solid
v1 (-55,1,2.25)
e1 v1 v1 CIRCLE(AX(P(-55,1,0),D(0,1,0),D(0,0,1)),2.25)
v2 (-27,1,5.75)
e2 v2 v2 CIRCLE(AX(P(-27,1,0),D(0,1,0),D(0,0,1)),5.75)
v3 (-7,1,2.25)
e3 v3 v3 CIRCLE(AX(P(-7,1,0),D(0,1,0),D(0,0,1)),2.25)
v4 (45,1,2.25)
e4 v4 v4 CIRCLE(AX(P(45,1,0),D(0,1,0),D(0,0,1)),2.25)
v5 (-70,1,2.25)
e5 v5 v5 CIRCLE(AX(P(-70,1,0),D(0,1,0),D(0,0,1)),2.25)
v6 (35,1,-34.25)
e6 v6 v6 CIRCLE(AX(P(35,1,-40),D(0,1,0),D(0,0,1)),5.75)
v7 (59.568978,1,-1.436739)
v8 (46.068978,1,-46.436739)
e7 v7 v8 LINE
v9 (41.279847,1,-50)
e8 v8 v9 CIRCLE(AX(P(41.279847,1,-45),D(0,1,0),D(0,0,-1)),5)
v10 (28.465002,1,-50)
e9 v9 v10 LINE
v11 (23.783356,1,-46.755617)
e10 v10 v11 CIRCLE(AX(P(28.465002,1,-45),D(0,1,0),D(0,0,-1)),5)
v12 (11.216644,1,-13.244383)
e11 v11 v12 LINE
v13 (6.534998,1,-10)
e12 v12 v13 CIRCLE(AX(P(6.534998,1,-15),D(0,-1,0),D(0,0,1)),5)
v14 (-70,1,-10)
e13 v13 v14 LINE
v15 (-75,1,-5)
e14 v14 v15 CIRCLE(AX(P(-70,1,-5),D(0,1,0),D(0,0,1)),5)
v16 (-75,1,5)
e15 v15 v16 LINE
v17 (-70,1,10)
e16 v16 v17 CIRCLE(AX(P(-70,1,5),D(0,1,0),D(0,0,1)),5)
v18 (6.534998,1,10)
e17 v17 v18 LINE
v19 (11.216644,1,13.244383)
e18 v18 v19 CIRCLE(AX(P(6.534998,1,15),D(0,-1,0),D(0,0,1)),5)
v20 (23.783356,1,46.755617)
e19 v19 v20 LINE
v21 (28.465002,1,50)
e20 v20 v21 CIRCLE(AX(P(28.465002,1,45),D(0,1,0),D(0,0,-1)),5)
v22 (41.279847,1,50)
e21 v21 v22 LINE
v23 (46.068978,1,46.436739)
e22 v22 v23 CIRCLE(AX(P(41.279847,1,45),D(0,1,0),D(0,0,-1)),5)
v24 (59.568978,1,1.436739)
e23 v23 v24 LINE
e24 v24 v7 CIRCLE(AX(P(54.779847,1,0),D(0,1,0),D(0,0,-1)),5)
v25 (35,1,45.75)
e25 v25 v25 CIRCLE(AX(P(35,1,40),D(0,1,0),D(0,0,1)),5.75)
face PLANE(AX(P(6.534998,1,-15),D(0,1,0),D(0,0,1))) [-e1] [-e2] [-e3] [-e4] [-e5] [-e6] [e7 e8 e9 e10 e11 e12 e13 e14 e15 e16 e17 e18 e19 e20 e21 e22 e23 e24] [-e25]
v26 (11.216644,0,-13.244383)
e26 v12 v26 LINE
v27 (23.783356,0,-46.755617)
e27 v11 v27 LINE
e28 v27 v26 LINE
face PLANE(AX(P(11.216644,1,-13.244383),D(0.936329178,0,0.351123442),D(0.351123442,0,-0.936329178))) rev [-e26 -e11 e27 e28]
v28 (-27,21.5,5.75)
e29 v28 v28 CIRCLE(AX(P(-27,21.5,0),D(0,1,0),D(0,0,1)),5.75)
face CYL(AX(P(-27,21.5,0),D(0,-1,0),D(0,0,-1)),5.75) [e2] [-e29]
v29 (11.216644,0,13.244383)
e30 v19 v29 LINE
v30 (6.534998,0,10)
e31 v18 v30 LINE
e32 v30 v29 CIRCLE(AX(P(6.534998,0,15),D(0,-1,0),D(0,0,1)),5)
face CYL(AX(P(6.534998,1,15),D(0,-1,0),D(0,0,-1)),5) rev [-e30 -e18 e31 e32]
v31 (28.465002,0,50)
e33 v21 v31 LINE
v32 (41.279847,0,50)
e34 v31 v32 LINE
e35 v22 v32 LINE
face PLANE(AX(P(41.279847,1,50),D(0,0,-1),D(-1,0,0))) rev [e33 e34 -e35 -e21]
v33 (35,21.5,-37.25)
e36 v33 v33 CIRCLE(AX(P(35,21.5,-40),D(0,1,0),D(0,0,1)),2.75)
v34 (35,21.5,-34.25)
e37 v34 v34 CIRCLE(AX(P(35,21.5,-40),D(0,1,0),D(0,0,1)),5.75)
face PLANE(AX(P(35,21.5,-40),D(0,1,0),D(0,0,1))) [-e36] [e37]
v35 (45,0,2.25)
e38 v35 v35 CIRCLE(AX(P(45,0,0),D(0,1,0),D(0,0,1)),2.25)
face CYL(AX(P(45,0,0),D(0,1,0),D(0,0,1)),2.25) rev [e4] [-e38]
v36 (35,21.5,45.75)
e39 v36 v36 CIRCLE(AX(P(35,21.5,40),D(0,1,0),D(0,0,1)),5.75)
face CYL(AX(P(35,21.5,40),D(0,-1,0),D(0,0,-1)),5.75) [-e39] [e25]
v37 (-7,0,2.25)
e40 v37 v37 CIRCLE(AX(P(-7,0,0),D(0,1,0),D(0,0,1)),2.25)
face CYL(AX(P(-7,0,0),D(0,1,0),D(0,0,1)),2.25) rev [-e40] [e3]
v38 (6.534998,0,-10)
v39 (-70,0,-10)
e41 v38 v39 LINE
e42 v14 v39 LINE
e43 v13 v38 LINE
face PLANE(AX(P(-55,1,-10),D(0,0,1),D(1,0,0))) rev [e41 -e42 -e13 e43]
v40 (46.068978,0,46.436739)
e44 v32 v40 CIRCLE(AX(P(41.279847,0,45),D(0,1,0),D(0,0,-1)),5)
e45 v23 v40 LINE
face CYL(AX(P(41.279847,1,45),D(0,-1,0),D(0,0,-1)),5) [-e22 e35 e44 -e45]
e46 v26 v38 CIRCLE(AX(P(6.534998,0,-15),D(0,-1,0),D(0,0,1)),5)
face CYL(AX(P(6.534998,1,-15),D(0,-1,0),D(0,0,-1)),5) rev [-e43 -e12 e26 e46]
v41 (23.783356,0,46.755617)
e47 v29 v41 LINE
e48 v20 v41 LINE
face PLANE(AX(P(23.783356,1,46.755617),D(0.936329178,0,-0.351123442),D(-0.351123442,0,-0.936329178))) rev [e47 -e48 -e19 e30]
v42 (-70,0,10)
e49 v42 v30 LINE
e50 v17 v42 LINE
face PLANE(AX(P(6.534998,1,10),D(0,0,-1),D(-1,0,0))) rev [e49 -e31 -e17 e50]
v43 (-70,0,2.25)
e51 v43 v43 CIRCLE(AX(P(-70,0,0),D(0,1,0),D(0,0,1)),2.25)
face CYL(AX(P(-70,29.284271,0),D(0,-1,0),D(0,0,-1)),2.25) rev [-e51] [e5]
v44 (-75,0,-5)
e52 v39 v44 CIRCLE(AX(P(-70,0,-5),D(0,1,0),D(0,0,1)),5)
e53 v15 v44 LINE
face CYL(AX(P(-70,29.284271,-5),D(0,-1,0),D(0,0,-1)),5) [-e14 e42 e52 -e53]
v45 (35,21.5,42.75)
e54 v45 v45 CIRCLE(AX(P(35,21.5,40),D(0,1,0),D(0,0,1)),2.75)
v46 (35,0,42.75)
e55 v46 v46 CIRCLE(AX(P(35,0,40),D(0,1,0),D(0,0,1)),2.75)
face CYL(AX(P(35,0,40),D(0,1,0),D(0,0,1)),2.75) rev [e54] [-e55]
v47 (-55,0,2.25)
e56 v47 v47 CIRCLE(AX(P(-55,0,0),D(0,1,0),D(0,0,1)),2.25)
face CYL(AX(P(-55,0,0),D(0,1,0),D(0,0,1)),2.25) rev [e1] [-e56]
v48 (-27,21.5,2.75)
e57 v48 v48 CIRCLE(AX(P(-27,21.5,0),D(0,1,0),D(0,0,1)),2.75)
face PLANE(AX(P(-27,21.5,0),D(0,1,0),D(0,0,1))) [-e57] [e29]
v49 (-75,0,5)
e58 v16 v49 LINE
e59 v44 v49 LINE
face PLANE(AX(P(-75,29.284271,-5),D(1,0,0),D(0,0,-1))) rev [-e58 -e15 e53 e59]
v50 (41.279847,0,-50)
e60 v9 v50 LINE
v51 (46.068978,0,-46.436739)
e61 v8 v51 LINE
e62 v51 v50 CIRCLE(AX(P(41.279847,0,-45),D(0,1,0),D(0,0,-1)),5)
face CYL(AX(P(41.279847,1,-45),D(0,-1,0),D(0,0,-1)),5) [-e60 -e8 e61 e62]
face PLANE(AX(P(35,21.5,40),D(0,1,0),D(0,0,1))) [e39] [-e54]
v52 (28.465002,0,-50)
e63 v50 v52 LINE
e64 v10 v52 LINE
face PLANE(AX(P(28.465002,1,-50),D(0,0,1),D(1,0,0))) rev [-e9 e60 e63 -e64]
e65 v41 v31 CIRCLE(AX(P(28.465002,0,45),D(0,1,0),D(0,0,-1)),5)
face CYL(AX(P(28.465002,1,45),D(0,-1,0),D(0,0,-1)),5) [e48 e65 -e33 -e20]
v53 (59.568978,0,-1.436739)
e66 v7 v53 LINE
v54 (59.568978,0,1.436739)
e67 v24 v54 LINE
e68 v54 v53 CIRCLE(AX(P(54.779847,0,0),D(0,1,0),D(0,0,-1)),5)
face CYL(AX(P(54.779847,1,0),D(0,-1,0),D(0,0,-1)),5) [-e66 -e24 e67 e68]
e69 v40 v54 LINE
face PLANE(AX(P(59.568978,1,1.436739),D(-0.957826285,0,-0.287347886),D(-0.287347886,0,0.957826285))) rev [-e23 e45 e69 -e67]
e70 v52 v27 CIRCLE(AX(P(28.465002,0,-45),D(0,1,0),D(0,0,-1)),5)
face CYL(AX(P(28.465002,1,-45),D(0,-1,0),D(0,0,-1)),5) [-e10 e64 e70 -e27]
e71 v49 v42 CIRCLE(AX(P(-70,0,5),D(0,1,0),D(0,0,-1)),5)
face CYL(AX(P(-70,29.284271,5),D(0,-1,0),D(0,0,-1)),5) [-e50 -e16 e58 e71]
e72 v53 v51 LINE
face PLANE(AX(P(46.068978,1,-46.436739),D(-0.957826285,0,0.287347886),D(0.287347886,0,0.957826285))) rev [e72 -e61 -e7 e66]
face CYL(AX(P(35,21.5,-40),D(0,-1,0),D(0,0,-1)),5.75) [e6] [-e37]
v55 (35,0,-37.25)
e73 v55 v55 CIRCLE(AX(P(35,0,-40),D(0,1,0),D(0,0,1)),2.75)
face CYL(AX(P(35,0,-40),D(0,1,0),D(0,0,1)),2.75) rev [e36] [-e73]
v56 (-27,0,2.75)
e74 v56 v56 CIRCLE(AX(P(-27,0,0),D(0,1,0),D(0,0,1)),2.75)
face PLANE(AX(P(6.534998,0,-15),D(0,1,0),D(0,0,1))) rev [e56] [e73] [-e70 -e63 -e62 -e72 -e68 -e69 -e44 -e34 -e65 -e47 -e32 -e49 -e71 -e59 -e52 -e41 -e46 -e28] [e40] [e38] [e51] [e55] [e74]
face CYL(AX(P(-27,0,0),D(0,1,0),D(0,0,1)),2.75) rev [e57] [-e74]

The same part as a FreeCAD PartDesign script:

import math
import FreeCAD as App
import Part
import Sketcher
from FreeCAD import Vector
Q = App.Units.Quantity

doc = App.newDocument("Part")
body = doc.addObject("PartDesign::Body", "Body")

sketch1 = body.newObject("Sketcher::SketchObject", "Sketch")
sketch1.AttachmentSupport = (doc.getObject("XZ_Plane"), [""])
sketch1.MapMode = "FlatFace"
sketch1.addGeometry(Part.LineSegment(Vector(6.5, -10, 0), Vector(-55, -10, 0)), False)
sketch1.addGeometry(Part.ArcOfCircle(Part.Circle(Vector(-55, -5, 0), Vector(0, 0, 1), 5), math.radians(180), math.radians(270)), False)
sketch1.addGeometry(Part.LineSegment(Vector(-60, -5, 0), Vector(-60, 5, 0)), False)
sketch1.addGeometry(Part.ArcOfCircle(Part.Circle(Vector(-55, 5, 0), Vector(0, 0, 1), 5), math.radians(90), math.radians(180)), False)
sketch1.addGeometry(Part.LineSegment(Vector(-55, 10, 0), Vector(6.5, 10, 0)), False)
sketch1.addGeometry(Part.ArcOfCircle(Part.Circle(Vector(6.5, 15, 0), Vector(0, 0, 1), 5), math.radians(-90), math.radians(-21)), False)
sketch1.addGeometry(Part.LineSegment(Vector(11.2, 13.2, 0), Vector(23.8, 46.8, 0)), False)
sketch1.addGeometry(Part.ArcOfCircle(Part.Circle(Vector(28.5, 45, 0), Vector(0, 0, 1), 5), math.radians(90), math.radians(159)), False)
sketch1.addGeometry(Part.LineSegment(Vector(28.5, 50, 0), Vector(41.3, 50, 0)), False)
sketch1.addGeometry(Part.ArcOfCircle(Part.Circle(Vector(41.3, 45, 0), Vector(0, 0, 1), 5), math.radians(17), math.radians(90)), False)
sketch1.addGeometry(Part.LineSegment(Vector(46.1, 46.4, 0), Vector(59.6, 1.4, 0)), False)
sketch1.addGeometry(Part.ArcOfCircle(Part.Circle(Vector(54.8, 0, 0), Vector(0, 0, 1), 5), math.radians(-17), math.radians(17)), False)
sketch1.addGeometry(Part.LineSegment(Vector(59.6, -1.4, 0), Vector(46.1, -46.4, 0)), False)
sketch1.addGeometry(Part.ArcOfCircle(Part.Circle(Vector(41.3, -45, 0), Vector(0, 0, 1), 5), math.radians(-90), math.radians(-17)), False)
sketch1.addGeometry(Part.LineSegment(Vector(41.3, -50, 0), Vector(28.5, -50, 0)), False)
sketch1.addGeometry(Part.ArcOfCircle(Part.Circle(Vector(28.5, -45, 0), Vector(0, 0, 1), 5), math.radians(-159), math.radians(-90)), False)
sketch1.addGeometry(Part.LineSegment(Vector(23.8, -46.8, 0), Vector(11.2, -13.2, 0)), False)
sketch1.addGeometry(Part.ArcOfCircle(Part.Circle(Vector(6.5, -15, 0), Vector(0, 0, 1), 5), math.radians(21), math.radians(90)), False)
sketch1.addConstraint(Sketcher.Constraint("Tangent", 0, 2, 1, 2))
sketch1.addConstraint(Sketcher.Constraint("Tangent", 1, 1, 2, 1))
sketch1.addConstraint(Sketcher.Constraint("Tangent", 2, 2, 3, 2))
sketch1.addConstraint(Sketcher.Constraint("Tangent", 3, 1, 4, 1))
sketch1.addConstraint(Sketcher.Constraint("Tangent", 4, 2, 5, 1))
sketch1.addConstraint(Sketcher.Constraint("Tangent", 5, 2, 6, 1))
sketch1.addConstraint(Sketcher.Constraint("Tangent", 6, 2, 7, 2))
sketch1.addConstraint(Sketcher.Constraint("Tangent", 7, 1, 8, 1))
sketch1.addConstraint(Sketcher.Constraint("Tangent", 8, 2, 9, 2))
sketch1.addConstraint(Sketcher.Constraint("Tangent", 9, 1, 10, 1))
sketch1.addConstraint(Sketcher.Constraint("Tangent", 10, 2, 11, 2))
sketch1.addConstraint(Sketcher.Constraint("Tangent", 11, 1, 12, 1))
sketch1.addConstraint(Sketcher.Constraint("Tangent", 12, 2, 13, 2))
sketch1.addConstraint(Sketcher.Constraint("Tangent", 13, 1, 14, 1))
sketch1.addConstraint(Sketcher.Constraint("Tangent", 14, 2, 15, 2))
sketch1.addConstraint(Sketcher.Constraint("Tangent", 15, 1, 16, 1))
sketch1.addConstraint(Sketcher.Constraint("Tangent", 16, 2, 17, 1))
sketch1.addConstraint(Sketcher.Constraint("Tangent", 17, 2, 0, 1))
sketch1.addConstraint(Sketcher.Constraint("Horizontal", 0))
sketch1.addConstraint(Sketcher.Constraint("Vertical", 2))
sketch1.addConstraint(Sketcher.Constraint("Horizontal", 4))
sketch1.addConstraint(Sketcher.Constraint("Horizontal", 8))
sketch1.addConstraint(Sketcher.Constraint("Horizontal", 14))
sketch1.addConstraint(Sketcher.Constraint("Equal", 1, 3))
sketch1.addConstraint(Sketcher.Constraint("Equal", 3, 5))
sketch1.addConstraint(Sketcher.Constraint("Equal", 5, 7))
sketch1.addConstraint(Sketcher.Constraint("Equal", 7, 9))
sketch1.addConstraint(Sketcher.Constraint("Equal", 9, 11))
sketch1.addConstraint(Sketcher.Constraint("Equal", 11, 13))
sketch1.addConstraint(Sketcher.Constraint("Equal", 13, 15))
sketch1.addConstraint(Sketcher.Constraint("Equal", 15, 17))
sketch1.addConstraint(Sketcher.Constraint("Symmetric", 9, 3, 13, 3, -1))
sketch1.addConstraint(Sketcher.Constraint("Symmetric", 5, 3, 17, 3, -1))
sketch1.addConstraint(Sketcher.Constraint("PointOnObject", 11, 3, -1))
sketch1.addConstraint(Sketcher.Constraint("Vertical", 7, 3, 15, 3))
sketch1.addConstraint(Sketcher.Constraint("Radius", 1, Q("5 mm")))
sketch1.addConstraint(Sketcher.Constraint("DistanceY", 2, 1, 2, 2, Q("10 mm")))
sketch1.addConstraint(Sketcher.Constraint("DistanceX", 1, 3, -1, 1, Q("55 mm")))
sketch1.addConstraint(Sketcher.Constraint("DistanceY", -1, 1, 7, 3, Q("45 mm")))
sketch1.addConstraint(Sketcher.Constraint("DistanceX", 9, 3, 11, 3, Q("13.5 mm")))
sketch1.addConstraint(Sketcher.Constraint("DistanceX", 0, 2, 0, 1, Q("61.534998 mm")))
sketch1.addConstraint(Sketcher.Constraint("DistanceX", 8, 1, 8, 2, Q("12.814844 mm")))
sketch1.addConstraint(Sketcher.Constraint("DistanceX", -1, 1, 9, 1, Q("46.068978 mm")))
pad1 = body.newObject("PartDesign::Pad", "Pad")
pad1.Profile = sketch1
pad1.Length = 1
pad1.Reversed = True

sketch2 = body.newObject("Sketcher::SketchObject", "Sketch001")
sketch2.AttachmentSupport = (doc.getObject("XZ_Plane"), [""])
sketch2.MapMode = "FlatFace"
sketch2.AttachmentOffset = App.Placement(Vector(0, 0, -1), App.Rotation())
sketch2.addGeometry(Part.Circle(Vector(-27, 0, 0), Vector(0, 0, 1), 2.8), False)
sketch2.addGeometry(Part.Circle(Vector(35, -40, 0), Vector(0, 0, 1), 2.8), False)
sketch2.addGeometry(Part.Circle(Vector(35, 40, 0), Vector(0, 0, 1), 2.8), False)
sketch2.addConstraint(Sketcher.Constraint("Equal", 0, 1))
sketch2.addConstraint(Sketcher.Constraint("Equal", 1, 2))
sketch2.addConstraint(Sketcher.Constraint("Symmetric", 1, 3, 2, 3, -1))
sketch2.addConstraint(Sketcher.Constraint("PointOnObject", 0, 3, -1))
sketch2.addConstraint(Sketcher.Constraint("Diameter", 0, Q("5.5 mm")))
sketch2.addConstraint(Sketcher.Constraint("DistanceX", 0, 3, -1, 1, Q("27 mm")))
sketch2.addConstraint(Sketcher.Constraint("DistanceX", -1, 1, 1, 3, Q("35 mm")))
sketch2.addConstraint(Sketcher.Constraint("DistanceY", 1, 3, -1, 1, Q("40 mm")))
pocket1 = body.newObject("PartDesign::Pocket", "Pocket")
pocket1.Profile = sketch2
pocket1.Type = "ThroughAll"
pocket1.Reversed = True

sketch3 = body.newObject("Sketcher::SketchObject", "Sketch002")
sketch3.AttachmentSupport = (doc.getObject("XZ_Plane"), [""])
sketch3.MapMode = "FlatFace"
sketch3.AttachmentOffset = App.Placement(Vector(0, 0, -1), App.Rotation())
sketch3.addGeometry(Part.Circle(Vector(-27, 0, 0), Vector(0, 0, 1), 5.8), False)
sketch3.addGeometry(Part.Circle(Vector(-27, 0, 0), Vector(0, 0, 1), 2.8), False)
sketch3.addGeometry(Part.Circle(Vector(35, -40, 0), Vector(0, 0, 1), 5.8), False)
sketch3.addGeometry(Part.Circle(Vector(35, -40, 0), Vector(0, 0, 1), 2.8), False)
sketch3.addGeometry(Part.Circle(Vector(35, 40, 0), Vector(0, 0, 1), 5.8), False)
sketch3.addGeometry(Part.Circle(Vector(35, 40, 0), Vector(0, 0, 1), 2.8), False)
sketch3.addConstraint(Sketcher.Constraint("Coincident", 1, 3, 0, 3))
sketch3.addConstraint(Sketcher.Constraint("Coincident", 3, 3, 2, 3))
sketch3.addConstraint(Sketcher.Constraint("Coincident", 5, 3, 4, 3))
sketch3.addConstraint(Sketcher.Constraint("Equal", 0, 2))
sketch3.addConstraint(Sketcher.Constraint("Equal", 1, 3))
sketch3.addConstraint(Sketcher.Constraint("Equal", 2, 4))
sketch3.addConstraint(Sketcher.Constraint("Equal", 3, 5))
sketch3.addConstraint(Sketcher.Constraint("Symmetric", 2, 3, 4, 3, -1))
sketch3.addConstraint(Sketcher.Constraint("PointOnObject", 0, 3, -1))
sketch3.addConstraint(Sketcher.Constraint("Diameter", 0, Q("11.5 mm")))
sketch3.addConstraint(Sketcher.Constraint("Diameter", 1, Q("5.5 mm")))
sketch3.addConstraint(Sketcher.Constraint("DistanceX", 0, 3, -1, 1, Q("27 mm")))
sketch3.addConstraint(Sketcher.Constraint("DistanceX", -1, 1, 2, 3, Q("35 mm")))
sketch3.addConstraint(Sketcher.Constraint("DistanceY", 2, 3, -1, 1, Q("40 mm")))
pad2 = body.newObject("PartDesign::Pad", "Pad001")
pad2.Profile = sketch3
pad2.Length = 20.5
pad2.Reversed = True

sketch4 = body.newObject("Sketcher::SketchObject", "Sketch003")
sketch4.AttachmentSupport = (doc.getObject("XZ_Plane"), [""])
sketch4.MapMode = "FlatFace"
sketch4.AttachmentOffset = App.Placement(Vector(0, 0, -1), App.Rotation())
sketch4.addGeometry(Part.Circle(Vector(-55, 0, 0), Vector(0, 0, 1), 2.2), False)
sketch4.addGeometry(Part.Circle(Vector(45, 0, 0), Vector(0, 0, 1), 2.2), False)
sketch4.addGeometry(Part.Circle(Vector(-7, 0, 0), Vector(0, 0, 1), 2.2), False)
sketch4.addConstraint(Sketcher.Constraint("Equal", 0, 1))
sketch4.addConstraint(Sketcher.Constraint("Equal", 1, 2))
sketch4.addConstraint(Sketcher.Constraint("PointOnObject", 0, 3, -1))
sketch4.addConstraint(Sketcher.Constraint("PointOnObject", 1, 3, -1))
sketch4.addConstraint(Sketcher.Constraint("PointOnObject", 2, 3, -1))
sketch4.addConstraint(Sketcher.Constraint("Diameter", 0, Q("4.5 mm")))
sketch4.addConstraint(Sketcher.Constraint("DistanceX", 0, 3, -1, 1, Q("55 mm")))
sketch4.addConstraint(Sketcher.Constraint("DistanceX", -1, 1, 1, 3, Q("45 mm")))
sketch4.addConstraint(Sketcher.Constraint("DistanceX", 2, 3, -1, 1, Q("7 mm")))
pocket2 = body.newObject("PartDesign::Pocket", "Pocket001")
pocket2.Profile = sketch4
pocket2.Type = "ThroughAll"
pocket2.Reversed = True

sketch5 = body.newObject("Sketcher::SketchObject", "Sketch004")
sketch5.AttachmentSupport = (doc.getObject("XZ_Plane"), [""])
sketch5.MapMode = "FlatFace"
sketch5.addGeometry(Part.LineSegment(Vector(-55, -10, 0), Vector(-70, -10, 0)), False)
sketch5.addGeometry(Part.ArcOfCircle(Part.Circle(Vector(-70, -5, 0), Vector(0, 0, 1), 5), math.radians(180), math.radians(270)), False)
sketch5.addGeometry(Part.LineSegment(Vector(-75, -5, 0), Vector(-75, 5, 0)), False)
sketch5.addGeometry(Part.ArcOfCircle(Part.Circle(Vector(-70, 5, 0), Vector(0, 0, 1), 5), math.radians(90), math.radians(180)), False)
sketch5.addGeometry(Part.LineSegment(Vector(-70, 10, 0), Vector(-55, 10, 0)), False)
sketch5.addGeometry(Part.LineSegment(Vector(-55, 10, 0), Vector(-55, -10, 0)), False)
sketch5.addGeometry(Part.Circle(Vector(-70, 0, 0), Vector(0, 0, 1), 2.2), False)
sketch5.addConstraint(Sketcher.Constraint("Tangent", 0, 2, 1, 2))
sketch5.addConstraint(Sketcher.Constraint("Tangent", 1, 1, 2, 1))
sketch5.addConstraint(Sketcher.Constraint("Tangent", 2, 2, 3, 2))
sketch5.addConstraint(Sketcher.Constraint("Tangent", 3, 1, 4, 1))
sketch5.addConstraint(Sketcher.Constraint("Coincident", 4, 2, 5, 1))
sketch5.addConstraint(Sketcher.Constraint("Coincident", 5, 2, 0, 1))
sketch5.addConstraint(Sketcher.Constraint("Horizontal", 0))
sketch5.addConstraint(Sketcher.Constraint("Vertical", 2))
sketch5.addConstraint(Sketcher.Constraint("Horizontal", 4))
sketch5.addConstraint(Sketcher.Constraint("Vertical", 5))
sketch5.addConstraint(Sketcher.Constraint("Equal", 1, 3))
sketch5.addConstraint(Sketcher.Constraint("PointOnObject", 6, 3, -1))
sketch5.addConstraint(Sketcher.Constraint("Vertical", 3, 3, 6, 3))
sketch5.addConstraint(Sketcher.Constraint("Radius", 1, Q("5 mm")))
sketch5.addConstraint(Sketcher.Constraint("Diameter", 6, Q("4.5 mm")))
sketch5.addConstraint(Sketcher.Constraint("DistanceX", 0, 2, 0, 1, Q("15 mm")))
sketch5.addConstraint(Sketcher.Constraint("DistanceY", 2, 1, 2, 2, Q("10 mm")))
sketch5.addConstraint(Sketcher.Constraint("DistanceX", 1, 3, -1, 1, Q("70 mm")))
sketch5.addConstraint(Sketcher.Constraint("DistanceY", 1, 3, -1, 1, Q("5 mm")))
pad3 = body.newObject("PartDesign::Pad", "Pad002")
pad3.Profile = sketch5
pad3.Length = 1
pad3.Reversed = True

sketch6 = body.newObject("Sketcher::SketchObject", "Sketch005")
sketch6.AttachmentSupport = (doc.getObject("XZ_Plane"), [""])
sketch6.MapMode = "FlatFace"
sketch6.AttachmentOffset = App.Placement(Vector(0, 0, -1), App.Rotation())
sketch6.addGeometry(Part.Circle(Vector(-55, 0, 0), Vector(0, 0, 1), 2.2), False)
sketch6.addConstraint(Sketcher.Constraint("PointOnObject", 0, 3, -1))
sketch6.addConstraint(Sketcher.Constraint("Diameter", 0, Q("4.5 mm")))
sketch6.addConstraint(Sketcher.Constraint("DistanceX", 0, 3, -1, 1, Q("55 mm")))
pocket3 = body.newObject("PartDesign::Pocket", "Pocket002")
pocket3.Profile = sketch6
pocket3.Type = "ThroughAll"
pocket3.Reversed = True

doc.recompute()
